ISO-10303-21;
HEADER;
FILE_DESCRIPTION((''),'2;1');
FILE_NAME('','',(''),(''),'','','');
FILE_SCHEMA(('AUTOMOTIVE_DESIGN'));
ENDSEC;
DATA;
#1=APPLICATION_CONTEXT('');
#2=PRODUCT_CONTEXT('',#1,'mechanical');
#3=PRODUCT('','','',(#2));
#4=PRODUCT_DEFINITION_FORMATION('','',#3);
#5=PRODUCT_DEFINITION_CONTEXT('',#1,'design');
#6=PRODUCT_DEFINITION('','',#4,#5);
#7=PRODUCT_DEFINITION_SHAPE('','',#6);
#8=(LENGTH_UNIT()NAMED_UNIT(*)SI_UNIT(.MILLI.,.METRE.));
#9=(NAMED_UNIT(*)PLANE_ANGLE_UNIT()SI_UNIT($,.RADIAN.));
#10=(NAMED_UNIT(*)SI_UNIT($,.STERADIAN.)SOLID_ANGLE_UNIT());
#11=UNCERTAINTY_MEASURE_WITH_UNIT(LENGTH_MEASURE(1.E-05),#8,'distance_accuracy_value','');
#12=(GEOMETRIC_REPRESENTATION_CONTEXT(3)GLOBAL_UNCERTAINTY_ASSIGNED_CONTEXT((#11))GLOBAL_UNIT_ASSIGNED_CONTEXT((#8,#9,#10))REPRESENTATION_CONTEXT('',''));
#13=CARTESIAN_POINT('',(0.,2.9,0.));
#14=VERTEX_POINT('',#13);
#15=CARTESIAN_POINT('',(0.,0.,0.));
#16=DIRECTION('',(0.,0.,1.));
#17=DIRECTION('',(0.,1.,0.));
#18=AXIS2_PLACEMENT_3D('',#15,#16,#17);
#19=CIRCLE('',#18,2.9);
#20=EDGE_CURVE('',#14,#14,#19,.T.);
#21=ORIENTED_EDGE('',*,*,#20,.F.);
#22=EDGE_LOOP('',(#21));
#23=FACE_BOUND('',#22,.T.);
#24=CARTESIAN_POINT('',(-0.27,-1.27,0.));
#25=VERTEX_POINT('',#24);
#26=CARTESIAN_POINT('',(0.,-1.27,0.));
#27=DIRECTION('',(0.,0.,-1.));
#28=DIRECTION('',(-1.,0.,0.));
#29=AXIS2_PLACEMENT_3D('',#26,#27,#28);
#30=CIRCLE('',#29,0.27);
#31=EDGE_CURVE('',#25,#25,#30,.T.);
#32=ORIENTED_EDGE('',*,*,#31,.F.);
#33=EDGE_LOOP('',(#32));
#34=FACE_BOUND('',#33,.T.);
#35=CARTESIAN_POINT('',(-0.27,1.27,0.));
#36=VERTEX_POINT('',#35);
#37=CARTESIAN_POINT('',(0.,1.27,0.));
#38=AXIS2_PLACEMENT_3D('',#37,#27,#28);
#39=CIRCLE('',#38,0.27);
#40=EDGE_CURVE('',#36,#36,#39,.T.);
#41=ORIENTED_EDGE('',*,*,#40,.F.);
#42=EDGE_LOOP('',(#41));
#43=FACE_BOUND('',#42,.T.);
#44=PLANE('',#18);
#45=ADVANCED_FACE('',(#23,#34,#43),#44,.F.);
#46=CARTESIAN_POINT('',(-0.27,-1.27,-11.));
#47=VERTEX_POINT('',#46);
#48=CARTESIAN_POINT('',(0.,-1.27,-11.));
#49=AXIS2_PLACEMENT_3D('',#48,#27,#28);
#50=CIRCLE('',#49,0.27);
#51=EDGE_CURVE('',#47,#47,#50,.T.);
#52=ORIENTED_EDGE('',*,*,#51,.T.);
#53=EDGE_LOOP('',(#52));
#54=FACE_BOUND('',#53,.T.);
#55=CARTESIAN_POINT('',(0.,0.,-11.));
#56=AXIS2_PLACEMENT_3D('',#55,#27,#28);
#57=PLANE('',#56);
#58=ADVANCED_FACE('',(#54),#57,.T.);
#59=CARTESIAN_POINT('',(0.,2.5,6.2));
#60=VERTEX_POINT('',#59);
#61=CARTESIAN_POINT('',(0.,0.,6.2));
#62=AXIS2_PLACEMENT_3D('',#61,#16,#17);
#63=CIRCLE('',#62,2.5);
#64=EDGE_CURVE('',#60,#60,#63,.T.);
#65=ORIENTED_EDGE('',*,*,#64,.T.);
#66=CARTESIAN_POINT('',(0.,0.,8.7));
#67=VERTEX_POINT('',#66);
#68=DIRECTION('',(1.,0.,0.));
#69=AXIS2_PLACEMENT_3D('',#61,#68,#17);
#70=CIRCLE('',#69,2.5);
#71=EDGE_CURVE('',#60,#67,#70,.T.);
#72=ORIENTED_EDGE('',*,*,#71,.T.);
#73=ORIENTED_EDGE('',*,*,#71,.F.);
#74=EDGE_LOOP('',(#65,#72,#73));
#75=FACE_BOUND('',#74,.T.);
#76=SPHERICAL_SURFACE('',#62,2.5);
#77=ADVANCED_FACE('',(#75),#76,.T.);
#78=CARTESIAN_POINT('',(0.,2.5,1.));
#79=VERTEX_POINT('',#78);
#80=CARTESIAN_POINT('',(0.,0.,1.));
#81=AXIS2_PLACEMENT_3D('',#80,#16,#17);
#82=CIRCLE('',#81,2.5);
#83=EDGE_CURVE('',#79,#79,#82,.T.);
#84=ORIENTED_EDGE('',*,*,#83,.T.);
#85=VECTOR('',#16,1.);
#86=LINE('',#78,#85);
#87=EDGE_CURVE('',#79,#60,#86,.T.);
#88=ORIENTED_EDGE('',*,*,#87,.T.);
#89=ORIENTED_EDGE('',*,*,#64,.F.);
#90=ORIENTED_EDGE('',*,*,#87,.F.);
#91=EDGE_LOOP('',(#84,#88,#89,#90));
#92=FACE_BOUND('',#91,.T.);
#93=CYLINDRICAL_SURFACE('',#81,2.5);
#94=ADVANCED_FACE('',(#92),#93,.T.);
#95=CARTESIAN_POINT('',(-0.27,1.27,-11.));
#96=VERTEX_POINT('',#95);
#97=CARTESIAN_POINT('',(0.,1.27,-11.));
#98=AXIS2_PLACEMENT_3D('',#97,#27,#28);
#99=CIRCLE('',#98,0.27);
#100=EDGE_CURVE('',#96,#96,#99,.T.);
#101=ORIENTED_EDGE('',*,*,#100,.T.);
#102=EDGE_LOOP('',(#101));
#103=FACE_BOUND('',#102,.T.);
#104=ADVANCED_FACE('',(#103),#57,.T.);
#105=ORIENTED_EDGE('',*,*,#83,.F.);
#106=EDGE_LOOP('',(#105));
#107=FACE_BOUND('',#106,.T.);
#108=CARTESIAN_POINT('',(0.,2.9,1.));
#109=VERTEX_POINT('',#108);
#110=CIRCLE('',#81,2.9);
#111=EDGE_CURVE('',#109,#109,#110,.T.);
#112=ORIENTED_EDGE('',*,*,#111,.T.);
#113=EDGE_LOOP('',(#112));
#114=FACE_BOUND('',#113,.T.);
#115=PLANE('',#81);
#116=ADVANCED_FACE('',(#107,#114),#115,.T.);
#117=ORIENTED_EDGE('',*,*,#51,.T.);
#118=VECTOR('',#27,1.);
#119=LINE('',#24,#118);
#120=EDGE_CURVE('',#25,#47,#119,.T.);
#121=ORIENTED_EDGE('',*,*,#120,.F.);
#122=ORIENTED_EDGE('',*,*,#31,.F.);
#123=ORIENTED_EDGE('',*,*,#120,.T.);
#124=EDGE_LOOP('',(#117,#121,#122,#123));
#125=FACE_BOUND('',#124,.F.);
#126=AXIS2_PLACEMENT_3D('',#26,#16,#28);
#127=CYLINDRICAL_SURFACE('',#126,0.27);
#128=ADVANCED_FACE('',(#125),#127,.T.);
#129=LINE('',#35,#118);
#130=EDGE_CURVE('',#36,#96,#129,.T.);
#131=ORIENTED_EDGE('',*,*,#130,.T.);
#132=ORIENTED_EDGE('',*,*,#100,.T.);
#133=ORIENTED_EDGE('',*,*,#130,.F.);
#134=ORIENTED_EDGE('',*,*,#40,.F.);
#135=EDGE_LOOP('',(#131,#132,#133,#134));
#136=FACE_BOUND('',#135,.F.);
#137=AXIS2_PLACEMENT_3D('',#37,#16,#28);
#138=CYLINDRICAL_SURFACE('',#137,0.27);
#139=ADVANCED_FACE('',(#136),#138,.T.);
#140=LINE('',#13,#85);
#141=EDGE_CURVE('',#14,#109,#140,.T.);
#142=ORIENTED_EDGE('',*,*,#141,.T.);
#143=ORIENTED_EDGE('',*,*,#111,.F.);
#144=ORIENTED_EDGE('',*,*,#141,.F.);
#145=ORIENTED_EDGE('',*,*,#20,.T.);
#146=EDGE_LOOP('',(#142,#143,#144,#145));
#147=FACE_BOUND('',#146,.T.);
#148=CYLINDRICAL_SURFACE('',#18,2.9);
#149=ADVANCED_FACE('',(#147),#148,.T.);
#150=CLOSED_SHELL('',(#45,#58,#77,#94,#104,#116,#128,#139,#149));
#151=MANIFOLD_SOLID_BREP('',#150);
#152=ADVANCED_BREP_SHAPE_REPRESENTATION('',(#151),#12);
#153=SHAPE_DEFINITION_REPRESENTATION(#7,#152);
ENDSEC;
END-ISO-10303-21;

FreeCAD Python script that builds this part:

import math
import FreeCAD as App
import Part
import Sketcher
from FreeCAD import Vector
Q = App.Units.Quantity

doc = App.newDocument("Part")
body = doc.addObject("PartDesign::Body", "Body")

# Sketch on YZ plane
sketch1 = body.newObject("Sketcher::SketchObject", "Sketch")
sketch1.AttachmentSupport = (doc.getObject("YZ_Plane"), [""])
sketch1.MapMode = "FlatFace"
sketch1.addGeometry([
    Part.LineSegment(Vector(0, 8.7, 0), Vector(0, 0, 0)),  # 0
    Part.LineSegment(Vector(0, 0, 0), Vector(2.9, 0, 0)),  # 1
    Part.LineSegment(Vector(2.9, 0, 0), Vector(2.9, 1, 0)),  # 2
    Part.LineSegment(Vector(2.9, 1, 0), Vector(2.5, 1, 0)),  # 3
    Part.LineSegment(Vector(2.5, 1, 0), Vector(2.5, 6.2, 0)),  # 4
    Part.ArcOfCircle(Part.Circle(Vector(0, 6.2, 0), Vector(0, 0, 1), 2.5), math.radians(0), math.radians(90)),  # 5
], False)
sketch1.addConstraint([
    Sketcher.Constraint("Coincident", 0, 2, 1, 1),
    Sketcher.Constraint("Coincident", 1, 2, 2, 1),
    Sketcher.Constraint("Coincident", 2, 2, 3, 1),
    Sketcher.Constraint("Coincident", 3, 2, 4, 1),
    Sketcher.Constraint("Tangent", 4, 2, 5, 1),
    Sketcher.Constraint("Coincident", 5, 2, 0, 1),
    Sketcher.Constraint("Vertical", 0),
    Sketcher.Constraint("Horizontal", 1),
    Sketcher.Constraint("Vertical", 2),
    Sketcher.Constraint("Horizontal", 3),
    Sketcher.Constraint("Vertical", 4),
    Sketcher.Constraint("Coincident", 0, 2, -1, 1),
    Sketcher.Constraint("PointOnObject", 5, 3, -2),
    Sketcher.Constraint("Radius", 5, Q("2.5 mm")),
    Sketcher.Constraint("DistanceY", 2, 1, 2, 2, Q("1 mm")),
    Sketcher.Constraint("DistanceY", 3, 2, 5, 2, Q("7.7 mm")),
    Sketcher.Constraint("DistanceX", 1, 1, 1, 2, Q("2.9 mm")),
])
revolution = body.newObject("PartDesign::Revolution", "Revolution")
revolution.Profile = sketch1
revolution.ReferenceAxis = (sketch1, ["V_Axis"])
revolution.Angle = 360

# Sketch on XY plane
sketch2 = body.newObject("Sketcher::SketchObject", "Sketch001")
sketch2.AttachmentSupport = (doc.getObject("XY_Plane"), [""])
sketch2.MapMode = "FlatFace"
sketch2.addGeometry([
    Part.Circle(Vector(0, 1.27, 0), Vector(0, 0, 1), 0.27),
    Part.Circle(Vector(0, -1.27, 0), Vector(0, 0, 1), 0.27),
], False)
sketch2.addConstraint([
    Sketcher.Constraint("Equal", 0, 1),
    Sketcher.Constraint("Symmetric", 0, 3, 1, 3, -1, 1),
    Sketcher.Constraint("PointOnObject", 0, 3, -2),
    Sketcher.Constraint("Diameter", 0, Q("0.54 mm")),
    Sketcher.Constraint("DistanceY", -1, 1, 0, 3, Q("1.27 mm")),
])
pad1 = body.newObject("PartDesign::Pad", "Pad")
pad1.Profile = sketch2
pad1.Length = 11
pad1.Reversed = True

doc.recompute()
